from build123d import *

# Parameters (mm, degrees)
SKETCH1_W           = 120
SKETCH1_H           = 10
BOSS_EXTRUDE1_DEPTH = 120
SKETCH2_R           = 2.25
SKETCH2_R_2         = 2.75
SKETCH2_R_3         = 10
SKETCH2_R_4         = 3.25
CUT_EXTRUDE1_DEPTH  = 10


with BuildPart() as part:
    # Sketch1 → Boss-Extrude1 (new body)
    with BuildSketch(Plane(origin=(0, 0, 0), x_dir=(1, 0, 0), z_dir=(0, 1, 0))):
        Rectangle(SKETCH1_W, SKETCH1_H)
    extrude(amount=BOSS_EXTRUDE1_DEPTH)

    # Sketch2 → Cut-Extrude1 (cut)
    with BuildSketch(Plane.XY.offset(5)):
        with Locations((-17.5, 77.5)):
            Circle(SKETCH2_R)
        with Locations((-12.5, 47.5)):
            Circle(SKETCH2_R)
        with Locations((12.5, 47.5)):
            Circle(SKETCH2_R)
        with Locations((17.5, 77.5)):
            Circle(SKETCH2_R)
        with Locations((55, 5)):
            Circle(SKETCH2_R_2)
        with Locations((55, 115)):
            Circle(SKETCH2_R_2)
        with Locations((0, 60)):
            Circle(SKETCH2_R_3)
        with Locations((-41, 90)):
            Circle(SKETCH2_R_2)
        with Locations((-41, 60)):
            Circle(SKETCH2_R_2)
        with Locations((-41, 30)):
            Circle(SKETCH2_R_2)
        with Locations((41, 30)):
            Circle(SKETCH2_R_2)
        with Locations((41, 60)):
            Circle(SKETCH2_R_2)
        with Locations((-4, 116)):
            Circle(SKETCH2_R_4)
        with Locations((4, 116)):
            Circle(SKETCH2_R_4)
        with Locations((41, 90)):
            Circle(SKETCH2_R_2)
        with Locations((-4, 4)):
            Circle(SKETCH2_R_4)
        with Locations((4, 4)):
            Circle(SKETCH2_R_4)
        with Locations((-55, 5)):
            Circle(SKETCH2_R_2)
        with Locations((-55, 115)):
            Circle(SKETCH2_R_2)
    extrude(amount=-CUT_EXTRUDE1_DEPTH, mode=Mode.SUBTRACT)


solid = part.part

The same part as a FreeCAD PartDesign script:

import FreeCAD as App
import Part
import Sketcher

V = App.Vector


def add_polygon(sketch, points):
    """Adds a closed chain of lines whose ends are joined by coincident constraints."""
    first, n = sketch.GeometryCount, len(points)
    for a, b in zip(points, points[1:] + points[:1]):
        sketch.addGeometry(Part.LineSegment(App.Vector(*a, 0), App.Vector(*b, 0)), False)
    for i in range(n):
        sketch.addConstraint(Sketcher.Constraint("Coincident", first + i, 2, first + (i + 1) % n, 1))

doc = App.newDocument("Part")
body = doc.addObject("PartDesign::Body", "Body")

sketch1 = body.newObject("Sketcher::SketchObject", "Sketch")
sketch1.AttachmentSupport = (doc.getObject("XZ_Plane"), [""])
sketch1.MapMode = "FlatFace"
add_polygon(sketch1, [(-60, -5), (-60, 5), (60, 5), (60, -5)])
sketch1.addConstraint(Sketcher.Constraint("Vertical", 0))
sketch1.addConstraint(Sketcher.Constraint("Horizontal", 1))
sketch1.addConstraint(Sketcher.Constraint("Vertical", 2))
sketch1.addConstraint(Sketcher.Constraint("Horizontal", 3))
sketch1.addConstraint(Sketcher.Constraint("Symmetric", 0, 2, 2, 2, -1, 1))
sketch1.addConstraint(Sketcher.Constraint("DistanceX", 1, 1, 1, 2, 120.0))
sketch1.addConstraint(Sketcher.Constraint("DistanceY", 0, 1, 0, 2, 10.0))
pad1 = body.newObject("PartDesign::Pad", "Pad")
pad1.Profile = sketch1
pad1.Length = 120
pad1.Reversed = True

sketch2 = body.newObject("Sketcher::SketchObject", "Sketch001")
sketch2.AttachmentSupport = (doc.getObject("XY_Plane"), [""])
sketch2.MapMode = "FlatFace"
sketch2.AttachmentOffset = App.Placement(V(0, 0, 5), App.Rotation())
sketch2.addGeometry(Part.Circle(V(-17.5, 77.5, 0), V(0, 0, 1), 2.2), False)
sketch2.addGeometry(Part.Circle(V(-12.5, 47.5, 0), V(0, 0, 1), 2.2), False)
sketch2.addGeometry(Part.Circle(V(12.5, 47.5, 0), V(0, 0, 1), 2.2), False)
sketch2.addGeometry(Part.Circle(V(17.5, 77.5, 0), V(0, 0, 1), 2.2), False)
sketch2.addGeometry(Part.Circle(V(55, 5, 0), V(0, 0, 1), 2.8), False)
sketch2.addGeometry(Part.Circle(V(55, 115, 0), V(0, 0, 1), 2.8), False)
sketch2.addGeometry(Part.Circle(V(0, 60, 0), V(0, 0, 1), 10), False)
sketch2.addGeometry(Part.Circle(V(-41, 90, 0), V(0, 0, 1), 2.8), False)
sketch2.addGeometry(Part.Circle(V(-41, 60, 0), V(0, 0, 1), 2.8), False)
sketch2.addGeometry(Part.Circle(V(-41, 30, 0), V(0, 0, 1), 2.8), False)
sketch2.addGeometry(Part.Circle(V(41, 30, 0), V(0, 0, 1), 2.8), False)
sketch2.addGeometry(Part.Circle(V(41, 60, 0), V(0, 0, 1), 2.8), False)
sketch2.addGeometry(Part.Circle(V(-4, 116, 0), V(0, 0, 1), 3.2), False)
sketch2.addGeometry(Part.Circle(V(4, 116, 0), V(0, 0, 1), 3.2), False)
sketch2.addGeometry(Part.Circle(V(41, 90, 0), V(0, 0, 1), 2.8), False)
sketch2.addGeometry(Part.Circle(V(-4, 4, 0), V(0, 0, 1), 3.2), False)
sketch2.addGeometry(Part.Circle(V(4, 4, 0), V(0, 0, 1), 3.2), False)
sketch2.addGeometry(Part.Circle(V(-55, 5, 0), V(0, 0, 1), 2.8), False)
sketch2.addGeometry(Part.Circle(V(-55, 115, 0), V(0, 0, 1), 2.8), False)
sketch2.addConstraint(Sketcher.Constraint("Equal", 0, 1))
sketch2.addConstraint(Sketcher.Constraint("Equal", 1, 2))
sketch2.addConstraint(Sketcher.Constraint("Equal", 2, 3))
sketch2.addConstraint(Sketcher.Constraint("Equal", 4, 5))
sketch2.addConstraint(Sketcher.Constraint("Equal", 5, 7))
sketch2.addConstraint(Sketcher.Constraint("Equal", 7, 8))
sketch2.addConstraint(Sketcher.Constraint("Equal", 8, 9))
sketch2.addConstraint(Sketcher.Constraint("Equal", 9, 10))
sketch2.addConstraint(Sketcher.Constraint("Equal", 10, 11))
sketch2.addConstraint(Sketcher.Constraint("Equal", 12, 13))
sketch2.addConstraint(Sketcher.Constraint("Equal", 11, 14))
sketch2.addConstraint(Sketcher.Constraint("Equal", 13, 15))
sketch2.addConstraint(Sketcher.Constraint("Equal", 15, 16))
sketch2.addConstraint(Sketcher.Constraint("Equal", 14, 17))
sketch2.addConstraint(Sketcher.Constraint("Equal", 17, 18))
sketch2.addConstraint(Sketcher.Constraint("Symmetric", 1, 3, 2, 3, -2))
sketch2.addConstraint(Sketcher.Constraint("Symmetric", 0, 3, 3, 3, -2))
sketch2.addConstraint(Sketcher.Constraint("Symmetric", 9, 3, 10, 3, -2))
sketch2.addConstraint(Sketcher.Constraint("Symmetric", 8, 3, 11, 3, -2))
sketch2.addConstraint(Sketcher.Constraint("Symmetric", 12, 3, 13, 3, -2))
sketch2.addConstraint(Sketcher.Constraint("Symmetric", 7, 3, 14, 3, -2))
sketch2.addConstraint(Sketcher.Constraint("Symmetric", 15, 3, 16, 3, -2))
sketch2.addConstraint(Sketcher.Constraint("Symmetric", 4, 3, 17, 3, -2))
sketch2.addConstraint(Sketcher.Constraint("Symmetric", 5, 3, 18, 3, -2))
sketch2.addConstraint(Sketcher.Constraint("PointOnObject", 6, 3, -2))
sketch2.addConstraint(Sketcher.Constraint("Horizontal", 6, 3, 8, 3))
sketch2.addConstraint(Sketcher.Constraint("Vertical", 4, 3, 5, 3))
sketch2.addConstraint(Sketcher.Constraint("Vertical", 7, 3, 8, 3))
sketch2.addConstraint(Sketcher.Constraint("Vertical", 8, 3, 9, 3))
sketch2.addConstraint(Sketcher.Constraint("Vertical", 12, 3, 15, 3))
sketch2.addConstraint(Sketcher.Constraint("Diameter", 6, 20.0))
sketch2.addConstraint(Sketcher.Constraint("Diameter", 0, 4.5))
sketch2.addConstraint(Sketcher.Constraint("Diameter", 4, 5.5))
sketch2.addConstraint(Sketcher.Constraint("Diameter", 12, 6.5))
sketch2.addConstraint(Sketcher.Constraint("DistanceX", -1, 1, 4, 3, 55.0))
sketch2.addConstraint(Sketcher.Constraint("DistanceY", -1, 1, 4, 3, 5.0))
sketch2.addConstraint(Sketcher.Constraint("DistanceY", -1, 1, 5, 3, 115.0))
sketch2.addConstraint(Sketcher.Constraint("DistanceY", -1, 1, 6, 3, 60.0))
sketch2.addConstraint(Sketcher.Constraint("DistanceX", 7, 3, -1, 1, 41.0))
sketch2.addConstraint(Sketcher.Constraint("DistanceY", -1, 1, 7, 3, 90.0))
sketch2.addConstraint(Sketcher.Constraint("DistanceY", -1, 1, 9, 3, 30.0))
sketch2.addConstraint(Sketcher.Constraint("DistanceX", 12, 3, -1, 1, 4.0))
sketch2.addConstraint(Sketcher.Constraint("DistanceY", -1, 1, 12, 3, 116.0))
sketch2.addConstraint(Sketcher.Constraint("DistanceY", -1, 1, 15, 3, 4.0))
sketch2.addConstraint(Sketcher.Constraint("DistanceX", 0, 3, 1, 3, 5.0))
sketch2.addConstraint(Sketcher.Constraint("DistanceY", 1, 3, 0, 3, 30.0))
sketch2.addConstraint(Sketcher.Constraint("DistanceX", 1, 3, 2, 3, 25.0))
sketch2.addConstraint(Sketcher.Constraint("DistanceY", -1, 1, 0, 3, 77.5))
pocket1 = body.newObject("PartDesign::Pocket", "Pocket")
pocket1.Profile = sketch2
pocket1.Length = 10

doc.recompute()
